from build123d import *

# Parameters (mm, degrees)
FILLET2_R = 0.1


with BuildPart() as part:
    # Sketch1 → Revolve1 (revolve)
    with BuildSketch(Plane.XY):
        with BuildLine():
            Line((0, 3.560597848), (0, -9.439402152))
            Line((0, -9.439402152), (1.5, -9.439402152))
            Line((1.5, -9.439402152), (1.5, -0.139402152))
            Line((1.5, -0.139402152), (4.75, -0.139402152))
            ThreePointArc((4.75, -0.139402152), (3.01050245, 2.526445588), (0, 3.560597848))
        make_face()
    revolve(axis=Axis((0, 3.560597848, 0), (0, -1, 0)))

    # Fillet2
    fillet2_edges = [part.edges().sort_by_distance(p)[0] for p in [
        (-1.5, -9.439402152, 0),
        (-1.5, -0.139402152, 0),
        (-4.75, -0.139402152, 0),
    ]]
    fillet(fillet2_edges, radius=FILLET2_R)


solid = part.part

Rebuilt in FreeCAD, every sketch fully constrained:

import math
import FreeCAD as App
import Part
import Sketcher
Q = App.Units.Quantity


def edges_at(feature, points):
    """Names of the edges that pass closest to the given points."""
    edges = feature.Shape.Edges
    near = lambda p: min(range(len(edges)), key=lambda i: edges[i].distToShape(Part.Vertex(*p))[0])
    return sorted({f"Edge{near(p) + 1}" for p in points})

doc = App.newDocument("Part")
body = doc.addObject("PartDesign::Body", "Body")

# Sketch on XY plane
sketch1 = body.newObject("Sketcher::SketchObject", "Sketch")
sketch1.AttachmentSupport = (doc.getObject("XY_Plane"), [""])
sketch1.MapMode = "FlatFace"
sketch1.addGeometry([
    Part.LineSegment(App.Vector(0, 3.6, 0), App.Vector(0, -9.4, 0)),  # 0
    Part.LineSegment(App.Vector(0, -9.4, 0), App.Vector(1.5, -9.4, 0)),  # 1
    Part.LineSegment(App.Vector(1.5, -9.4, 0), App.Vector(1.5, -0.1, 0)),  # 2
    Part.LineSegment(App.Vector(1.5, -0.1, 0), App.Vector(4.8, -0.1, 0)),  # 3
    Part.ArcOfCircle(Part.Circle(App.Vector(0, -1.3, 0), App.Vector(0, 0, 1), 4.9), math.radians(14), math.radians(90)),  # 4
], False)
sketch1.addConstraint([
    Sketcher.Constraint("Coincident", 0, 2, 1, 1),
    Sketcher.Constraint("Coincident", 1, 2, 2, 1),
    Sketcher.Constraint("Coincident", 2, 2, 3, 1),
    Sketcher.Constraint("Coincident", 3, 2, 4, 1),
    Sketcher.Constraint("Coincident", 4, 2, 0, 1),
    Sketcher.Constraint("Vertical", 0),
    Sketcher.Constraint("Horizontal", 1),
    Sketcher.Constraint("Vertical", 2),
    Sketcher.Constraint("Horizontal", 3),
    Sketcher.Constraint("PointOnObject", 4, 3, -2),
    Sketcher.Constraint("PointOnObject", 0, 2, -2),
    Sketcher.Constraint("DistanceY", 0, 2, 0, 1, Q("13 mm")),
    Sketcher.Constraint("DistanceX", 1, 1, 1, 2, Q("1.5 mm")),
    Sketcher.Constraint("DistanceY", 2, 1, 2, 2, Q("9.3 mm")),
    Sketcher.Constraint("DistanceX", 3, 1, 3, 2, Q("3.25 mm")),
    Sketcher.Constraint("DistanceY", 4, 3, -1, 1, Q("1.338389 mm")),
])
revolution = body.newObject("PartDesign::Revolution", "Revolution")
revolution.Profile = sketch1
revolution.ReferenceAxis = (sketch1, ["V_Axis"])
revolution.Angle = 360
doc.recompute()

fillet = body.newObject("PartDesign::Fillet", "Fillet")
fillet.Base = (revolution, edges_at(revolution, [(-1.5, -9.439, 0), (-1.5, -0.139, 0), (-4.75, -0.139, 0)]))
fillet.Radius = 0.1

doc.recompute()
